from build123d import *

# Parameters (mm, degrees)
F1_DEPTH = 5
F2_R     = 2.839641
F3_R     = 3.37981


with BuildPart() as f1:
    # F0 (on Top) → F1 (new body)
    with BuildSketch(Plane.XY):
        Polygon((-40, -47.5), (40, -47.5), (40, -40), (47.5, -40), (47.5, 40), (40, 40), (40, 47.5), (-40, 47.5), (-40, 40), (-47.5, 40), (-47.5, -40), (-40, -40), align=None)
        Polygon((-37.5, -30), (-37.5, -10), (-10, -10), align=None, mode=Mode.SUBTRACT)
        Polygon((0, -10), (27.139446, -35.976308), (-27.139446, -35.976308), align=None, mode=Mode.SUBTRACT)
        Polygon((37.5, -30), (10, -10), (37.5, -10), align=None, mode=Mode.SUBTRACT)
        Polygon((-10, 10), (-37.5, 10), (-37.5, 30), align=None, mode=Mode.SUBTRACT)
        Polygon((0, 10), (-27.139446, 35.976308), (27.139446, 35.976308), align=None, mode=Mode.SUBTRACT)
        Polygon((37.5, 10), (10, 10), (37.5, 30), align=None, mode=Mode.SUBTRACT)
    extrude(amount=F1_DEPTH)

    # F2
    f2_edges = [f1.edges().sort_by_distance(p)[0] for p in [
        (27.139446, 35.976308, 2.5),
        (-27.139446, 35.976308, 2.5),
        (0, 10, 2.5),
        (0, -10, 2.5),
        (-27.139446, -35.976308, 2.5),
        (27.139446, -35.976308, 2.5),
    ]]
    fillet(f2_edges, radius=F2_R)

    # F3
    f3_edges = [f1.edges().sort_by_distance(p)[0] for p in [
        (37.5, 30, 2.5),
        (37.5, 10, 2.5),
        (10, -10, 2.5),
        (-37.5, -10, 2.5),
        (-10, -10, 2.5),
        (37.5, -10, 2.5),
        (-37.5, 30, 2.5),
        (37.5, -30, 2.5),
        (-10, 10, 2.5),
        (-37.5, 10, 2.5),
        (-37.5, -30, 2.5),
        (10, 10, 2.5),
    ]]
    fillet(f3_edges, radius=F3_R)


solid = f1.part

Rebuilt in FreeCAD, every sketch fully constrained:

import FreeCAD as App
import Part
import Sketcher
from FreeCAD import Vector
Q = App.Units.Quantity


def edges_at(feature, points):
    """Names of the edges that pass closest to the given points."""
    edges = feature.Shape.Edges
    near = lambda p: min(range(len(edges)), key=lambda i: edges[i].distToShape(Part.Vertex(*p))[0])
    return sorted({f"Edge{near(p) + 1}" for p in points})

doc = App.newDocument("Part")
body = doc.addObject("PartDesign::Body", "Body")

# Sketch on XY plane
sketch1 = doc.addObject("Sketcher::SketchObject", "Sketch")
body.addObject(sketch1)
sketch1.AttachmentSupport = (doc.XY_Plane, [""])
sketch1.MapMode = "FlatFace"
sketch1.addGeometry([
    Part.LineSegment(Vector(-40, -48, 0), Vector(40, -48, 0)),  # 0
    Part.LineSegment(Vector(40, -48, 0), Vector(40, -40, 0)),  # 1
    Part.LineSegment(Vector(40, -40, 0), Vector(48, -40, 0)),  # 2
    Part.LineSegment(Vector(48, -40, 0), Vector(48, 40, 0)),  # 3
    Part.LineSegment(Vector(48, 40, 0), Vector(40, 40, 0)),  # 4
    Part.LineSegment(Vector(40, 40, 0), Vector(40, 48, 0)),  # 5
    Part.LineSegment(Vector(40, 48, 0), Vector(-40, 48, 0)),  # 6
    Part.LineSegment(Vector(-40, 48, 0), Vector(-40, 40, 0)),  # 7
    Part.LineSegment(Vector(-40, 40, 0), Vector(-48, 40, 0)),  # 8
    Part.LineSegment(Vector(-48, 40, 0), Vector(-48, -40, 0)),  # 9
    Part.LineSegment(Vector(-48, -40, 0), Vector(-40, -40, 0)),  # 10
    Part.LineSegment(Vector(-40, -40, 0), Vector(-40, -48, 0)),  # 11
    Part.LineSegment(Vector(-10, -10, 0), Vector(-38, -30, 0)),  # 12
    Part.LineSegment(Vector(-38, -30, 0), Vector(-38, -10, 0)),  # 13
    Part.LineSegment(Vector(-38, -10, 0), Vector(-10, -10, 0)),  # 14
    Part.LineSegment(Vector(-27, -36, 0), Vector(0, -10, 0)),  # 15
    Part.LineSegment(Vector(0, -10, 0), Vector(27, -36, 0)),  # 16
    Part.LineSegment(Vector(27, -36, 0), Vector(-27, -36, 0)),  # 17
    Part.LineSegment(Vector(38, -10, 0), Vector(38, -30, 0)),  # 18
    Part.LineSegment(Vector(38, -30, 0), Vector(10, -10, 0)),  # 19
    Part.LineSegment(Vector(10, -10, 0), Vector(38, -10, 0)),  # 20
    Part.LineSegment(Vector(-38, 30, 0), Vector(-10, 10, 0)),  # 21
    Part.LineSegment(Vector(-10, 10, 0), Vector(-38, 10, 0)),  # 22
    Part.LineSegment(Vector(-38, 10, 0), Vector(-38, 30, 0)),  # 23
    Part.LineSegment(Vector(27, 36, 0), Vector(0, 10, 0)),  # 24
    Part.LineSegment(Vector(0, 10, 0), Vector(-27, 36, 0)),  # 25
    Part.LineSegment(Vector(-27, 36, 0), Vector(27, 36, 0)),  # 26
    Part.LineSegment(Vector(38, 30, 0), Vector(38, 10, 0)),  # 27
    Part.LineSegment(Vector(38, 10, 0), Vector(10, 10, 0)),  # 28
    Part.LineSegment(Vector(10, 10, 0), Vector(38, 30, 0)),  # 29
], False)
sketch1.addConstraint([
    Sketcher.Constraint("Coincident", 0, 2, 1, 1),
    Sketcher.Constraint("Coincident", 1, 2, 2, 1),
    Sketcher.Constraint("Coincident", 2, 2, 3, 1),
    Sketcher.Constraint("Coincident", 3, 2, 4, 1),
    Sketcher.Constraint("Coincident", 4, 2, 5, 1),
    Sketcher.Constraint("Coincident", 5, 2, 6, 1),
    Sketcher.Constraint("Coincident", 6, 2, 7, 1),
    Sketcher.Constraint("Coincident", 7, 2, 8, 1),
    Sketcher.Constraint("Coincident", 8, 2, 9, 1),
    Sketcher.Constraint("Coincident", 9, 2, 10, 1),
    Sketcher.Constraint("Coincident", 10, 2, 11, 1),
    Sketcher.Constraint("Coincident", 11, 2, 0, 1),
    Sketcher.Constraint("Coincident", 12, 2, 13, 1),
    Sketcher.Constraint("Coincident", 13, 2, 14, 1),
    Sketcher.Constraint("Coincident", 14, 2, 12, 1),
    Sketcher.Constraint("Coincident", 15, 2, 16, 1),
    Sketcher.Constraint("Coincident", 16, 2, 17, 1),
    Sketcher.Constraint("Coincident", 17, 2, 15, 1),
    Sketcher.Constraint("Coincident", 18, 2, 19, 1),
    Sketcher.Constraint("Coincident", 19, 2, 20, 1),
    Sketcher.Constraint("Coincident", 20, 2, 18, 1),
    Sketcher.Constraint("Coincident", 21, 2, 22, 1),
    Sketcher.Constraint("Coincident", 22, 2, 23, 1),
    Sketcher.Constraint("Coincident", 23, 2, 21, 1),
    Sketcher.Constraint("Coincident", 24, 2, 25, 1),
    Sketcher.Constraint("Coincident", 25, 2, 26, 1),
    Sketcher.Constraint("Coincident", 26, 2, 24, 1),
    Sketcher.Constraint("Coincident", 27, 2, 28, 1),
    Sketcher.Constraint("Coincident", 28, 2, 29, 1),
    Sketcher.Constraint("Coincident", 29, 2, 27, 1),
    Sketcher.Constraint("Horizontal", 0),
    Sketcher.Constraint("Vertical", 1),
    Sketcher.Constraint("Horizontal", 2),
    Sketcher.Constraint("Vertical", 3),
    Sketcher.Constraint("Horizontal", 4),
    Sketcher.Constraint("Vertical", 5),
    Sketcher.Constraint("Horizontal", 6),
    Sketcher.Constraint("Vertical", 7),
    Sketcher.Constraint("Horizontal", 8),
    Sketcher.Constraint("Vertical", 9),
    Sketcher.Constraint("Horizontal", 10),
    Sketcher.Constraint("Vertical", 11),
    Sketcher.Constraint("Vertical", 13),
    Sketcher.Constraint("Horizontal", 14),
    Sketcher.Constraint("Horizontal", 17),
    Sketcher.Constraint("Vertical", 18),
    Sketcher.Constraint("Horizontal", 20),
    Sketcher.Constraint("Horizontal", 22),
    Sketcher.Constraint("Vertical", 23),
    Sketcher.Constraint("Horizontal", 26),
    Sketcher.Constraint("Vertical", 27),
    Sketcher.Constraint("Horizontal", 28),
    Sketcher.Constraint("Symmetric", 0, 2, 6, 2, -1, 1),
    Sketcher.Constraint("Symmetric", 2, 2, 8, 2, -1, 1),
    Sketcher.Constraint("Symmetric", 4, 2, 10, 2, -1, 1),
    Sketcher.Constraint("Symmetric", 19, 2, 21, 2, -1, 1),
    Sketcher.Constraint("Symmetric", 18, 2, 23, 2, -1, 1),
    Sketcher.Constraint("Symmetric", 15, 2, 24, 2, -1, 1),
    Sketcher.Constraint("Symmetric", 16, 2, 25, 2, -1, 1),
    Sketcher.Constraint("Symmetric", 13, 2, 27, 2, -1, 1),
    Sketcher.Constraint("Symmetric", 4, 2, 7, 2, -2),
    Sketcher.Constraint("Symmetric", 12, 2, 18, 2, -2),
    Sketcher.Constraint("Symmetric", 14, 2, 19, 2, -2),
    Sketcher.Constraint("PointOnObject", 15, 2, -2),
    Sketcher.Constraint("Parallel", 15, 24),
    Sketcher.Constraint("Parallel", 12, 29),
    Sketcher.Constraint("Horizontal", 14, 2, 15, 2),
    Sketcher.Constraint("Horizontal", 23, 2, 29, 2),
    Sketcher.Constraint("Vertical", 17, 2, 25, 2),
    Sketcher.Constraint("Equal", 10, 1),
    Sketcher.Constraint("Equal", 6, 3),
    Sketcher.Constraint("DistanceX", 0, 1, 0, 2, Q("80 mm")),
    Sketcher.Constraint("DistanceY", 13, 1, 13, 2, Q("20 mm")),
    Sketcher.Constraint("DistanceX", 2, 1, 2, 2, Q("7.5 mm")),
    Sketcher.Constraint("DistanceX", 14, 1, 14, 2, Q("27.5 mm")),
    Sketcher.Constraint("DistanceY", 12, 2, -1, 1, Q("30 mm")),
    Sketcher.Constraint("DistanceX", 14, 2, -1, 1, Q("10 mm")),
    Sketcher.Constraint("DistanceX", 17, 2, 17, 1, Q("54.278892 mm")),
    Sketcher.Constraint("DistanceY", 16, 2, -1, 1, Q("35.976308 mm")),
])
pad1 = doc.addObject("PartDesign::Pad", "Pad")
body.addObject(pad1)
pad1.Profile = sketch1
pad1.Length = 5
doc.recompute()

fillet = doc.addObject("PartDesign::Fillet", "Fillet")
body.addObject(fillet)
fillet.Base = (pad1, edges_at(pad1, [
    (27.139, 35.976, 2.5),
    (-27.139, 35.976, 2.5),
    (0, 10, 2.5),
    (0, -10, 2.5),
    (-27.139, -35.976, 2.5),
    (27.139, -35.976, 2.5),
]))
fillet.Radius = 2.839641
doc.recompute()

fillet2 = doc.addObject("PartDesign::Fillet", "Fillet001")
body.addObject(fillet2)
fillet2.Base = (fillet, edges_at(fillet, [
    (37.5, 30, 2.5),
    (37.5, 10, 2.5),
    (10, -10, 2.5),
    (-37.5, -10, 2.5),
    (-10, -10, 2.5),
    (37.5, -10, 2.5),
    (-37.5, 30, 2.5),
    (37.5, -30, 2.5),
    (-10, 10, 2.5),
    (-37.5, 10, 2.5),
    (-37.5, -30, 2.5),
    (10, 10, 2.5),
]))
fillet2.Radius = 3.37981

doc.recompute()
